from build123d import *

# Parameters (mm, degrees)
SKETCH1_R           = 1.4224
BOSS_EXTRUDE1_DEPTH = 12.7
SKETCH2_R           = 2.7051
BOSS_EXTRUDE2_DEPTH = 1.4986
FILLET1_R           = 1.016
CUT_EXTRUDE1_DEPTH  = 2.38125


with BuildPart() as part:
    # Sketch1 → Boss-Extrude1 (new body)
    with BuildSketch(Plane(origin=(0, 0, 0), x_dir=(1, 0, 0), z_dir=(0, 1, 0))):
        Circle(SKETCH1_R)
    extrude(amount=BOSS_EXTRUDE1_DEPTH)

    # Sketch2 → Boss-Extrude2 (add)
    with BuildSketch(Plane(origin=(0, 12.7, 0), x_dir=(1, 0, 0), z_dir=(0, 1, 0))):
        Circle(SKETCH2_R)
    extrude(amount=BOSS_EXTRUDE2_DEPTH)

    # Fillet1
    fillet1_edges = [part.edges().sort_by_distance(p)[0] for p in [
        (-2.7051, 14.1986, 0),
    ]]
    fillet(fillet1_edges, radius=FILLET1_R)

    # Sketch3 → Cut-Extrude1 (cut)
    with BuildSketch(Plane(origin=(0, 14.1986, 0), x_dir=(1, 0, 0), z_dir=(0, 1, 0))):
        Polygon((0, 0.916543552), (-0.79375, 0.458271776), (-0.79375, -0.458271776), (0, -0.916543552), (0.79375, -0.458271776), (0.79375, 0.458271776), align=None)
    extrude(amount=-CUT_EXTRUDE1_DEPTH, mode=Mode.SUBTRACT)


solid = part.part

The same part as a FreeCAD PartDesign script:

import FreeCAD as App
import Part
import Sketcher
Q = App.Units.Quantity


def edges_at(feature, points):
    """Names of the edges that pass closest to the given points."""
    edges = feature.Shape.Edges
    near = lambda p: min(range(len(edges)), key=lambda i: edges[i].distToShape(Part.Vertex(*p))[0])
    return sorted({f"Edge{near(p) + 1}" for p in points})


def add_polygon(sketch, points):
    """Adds a closed chain of lines whose ends are joined by coincident constraints."""
    first, n = sketch.GeometryCount, len(points)
    for a, b in zip(points, points[1:] + points[:1]):
        sketch.addGeometry(Part.LineSegment(App.Vector(*a, 0), App.Vector(*b, 0)), False)
    for i in range(n):
        sketch.addConstraint(Sketcher.Constraint("Coincident", first + i, 2, first + (i + 1) % n, 1))

doc = App.newDocument("Part")
body = doc.addObject("PartDesign::Body", "Body")

# Sketch on XZ plane
sketch1 = body.newObject("Sketcher::SketchObject", "Sketch")
sketch1.AttachmentSupport = (doc.getObject("XZ_Plane"), [""])
sketch1.MapMode = "FlatFace"
sketch1.addGeometry(Part.Circle(App.Vector(0, 0, 0), App.Vector(0, 0, 1), 1.4224), False)
sketch1.addConstraint([
    Sketcher.Constraint("Coincident", 0, 3, -1, 1),
    Sketcher.Constraint("Diameter", 0, Q("0.112 in")),
])
pad1 = body.newObject("PartDesign::Pad", "Pad")
pad1.Profile = sketch1
pad1.Length = Q("0.5 in")
pad1.Reversed = True

# Sketch on XZ plane
sketch2 = body.newObject("Sketcher::SketchObject", "Sketch001")
sketch2.AttachmentSupport = (doc.getObject("XZ_Plane"), [""])
sketch2.MapMode = "FlatFace"
sketch2.AttachmentOffset = App.Placement(App.Vector(0, 0, -0.5 * 25.4), App.Rotation())
sketch2.addGeometry(Part.Circle(App.Vector(0, 0, 0), App.Vector(0, 0, 1), 2.7051), False)
sketch2.addConstraint([
    Sketcher.Constraint("Coincident", 0, 3, -1, 1),
    Sketcher.Constraint("Diameter", 0, Q("0.213 in")),
])
pad2 = body.newObject("PartDesign::Pad", "Pad001")
pad2.Profile = sketch2
pad2.Length = Q("0.059 in")
pad2.Reversed = True
doc.recompute()

fillet = body.newObject("PartDesign::Fillet", "Fillet")
fillet.Base = (pad2, edges_at(pad2, [(-2.705, 14.199, 0)]))
fillet.Radius = Q("0.04 in")

# Sketch on XZ plane
sketch3 = body.newObject("Sketcher::SketchObject", "Sketch002")
sketch3.AttachmentSupport = (doc.getObject("XZ_Plane"), [""])
sketch3.MapMode = "FlatFace"
sketch3.AttachmentOffset = App.Placement(App.Vector(0, 0, -0.559 * 25.4), App.Rotation())
add_polygon(sketch3, [(0, -0.916544), (-0.79375, -0.458272), (-0.79375, 0.458272), (0, 0.916544), (0.79375, 0.458272), (0.79375, -0.458272)])  # lines 0-5
sketch3.addConstraint([
    Sketcher.Constraint("Vertical", 1),
    Sketcher.Constraint("Vertical", 4),
    Sketcher.Constraint("Symmetric", 0, 2, 3, 2, -1, 1),
    Sketcher.Constraint("Symmetric", 2, 2, 5, 2, -1, 1),
    Sketcher.Constraint("PointOnObject", 2, 2, -2),
    Sketcher.Constraint("Parallel", 2, 5),
    Sketcher.Constraint("Horizontal", 1, 2, 3, 2),
    Sketcher.Constraint("Angle", 0, Q("150 deg")),
    Sketcher.Constraint("DistanceX", 0, 2, -1, 1, Q("0.03125 in")),
    Sketcher.Constraint("DistanceY", 1, 1, 1, 2, Q("0.916544 mm")),
])
pocket1 = body.newObject("PartDesign::Pocket", "Pocket")
pocket1.Profile = sketch3
pocket1.Length = Q("0.09375 in")
pocket1.Reversed = True

doc.recompute()
